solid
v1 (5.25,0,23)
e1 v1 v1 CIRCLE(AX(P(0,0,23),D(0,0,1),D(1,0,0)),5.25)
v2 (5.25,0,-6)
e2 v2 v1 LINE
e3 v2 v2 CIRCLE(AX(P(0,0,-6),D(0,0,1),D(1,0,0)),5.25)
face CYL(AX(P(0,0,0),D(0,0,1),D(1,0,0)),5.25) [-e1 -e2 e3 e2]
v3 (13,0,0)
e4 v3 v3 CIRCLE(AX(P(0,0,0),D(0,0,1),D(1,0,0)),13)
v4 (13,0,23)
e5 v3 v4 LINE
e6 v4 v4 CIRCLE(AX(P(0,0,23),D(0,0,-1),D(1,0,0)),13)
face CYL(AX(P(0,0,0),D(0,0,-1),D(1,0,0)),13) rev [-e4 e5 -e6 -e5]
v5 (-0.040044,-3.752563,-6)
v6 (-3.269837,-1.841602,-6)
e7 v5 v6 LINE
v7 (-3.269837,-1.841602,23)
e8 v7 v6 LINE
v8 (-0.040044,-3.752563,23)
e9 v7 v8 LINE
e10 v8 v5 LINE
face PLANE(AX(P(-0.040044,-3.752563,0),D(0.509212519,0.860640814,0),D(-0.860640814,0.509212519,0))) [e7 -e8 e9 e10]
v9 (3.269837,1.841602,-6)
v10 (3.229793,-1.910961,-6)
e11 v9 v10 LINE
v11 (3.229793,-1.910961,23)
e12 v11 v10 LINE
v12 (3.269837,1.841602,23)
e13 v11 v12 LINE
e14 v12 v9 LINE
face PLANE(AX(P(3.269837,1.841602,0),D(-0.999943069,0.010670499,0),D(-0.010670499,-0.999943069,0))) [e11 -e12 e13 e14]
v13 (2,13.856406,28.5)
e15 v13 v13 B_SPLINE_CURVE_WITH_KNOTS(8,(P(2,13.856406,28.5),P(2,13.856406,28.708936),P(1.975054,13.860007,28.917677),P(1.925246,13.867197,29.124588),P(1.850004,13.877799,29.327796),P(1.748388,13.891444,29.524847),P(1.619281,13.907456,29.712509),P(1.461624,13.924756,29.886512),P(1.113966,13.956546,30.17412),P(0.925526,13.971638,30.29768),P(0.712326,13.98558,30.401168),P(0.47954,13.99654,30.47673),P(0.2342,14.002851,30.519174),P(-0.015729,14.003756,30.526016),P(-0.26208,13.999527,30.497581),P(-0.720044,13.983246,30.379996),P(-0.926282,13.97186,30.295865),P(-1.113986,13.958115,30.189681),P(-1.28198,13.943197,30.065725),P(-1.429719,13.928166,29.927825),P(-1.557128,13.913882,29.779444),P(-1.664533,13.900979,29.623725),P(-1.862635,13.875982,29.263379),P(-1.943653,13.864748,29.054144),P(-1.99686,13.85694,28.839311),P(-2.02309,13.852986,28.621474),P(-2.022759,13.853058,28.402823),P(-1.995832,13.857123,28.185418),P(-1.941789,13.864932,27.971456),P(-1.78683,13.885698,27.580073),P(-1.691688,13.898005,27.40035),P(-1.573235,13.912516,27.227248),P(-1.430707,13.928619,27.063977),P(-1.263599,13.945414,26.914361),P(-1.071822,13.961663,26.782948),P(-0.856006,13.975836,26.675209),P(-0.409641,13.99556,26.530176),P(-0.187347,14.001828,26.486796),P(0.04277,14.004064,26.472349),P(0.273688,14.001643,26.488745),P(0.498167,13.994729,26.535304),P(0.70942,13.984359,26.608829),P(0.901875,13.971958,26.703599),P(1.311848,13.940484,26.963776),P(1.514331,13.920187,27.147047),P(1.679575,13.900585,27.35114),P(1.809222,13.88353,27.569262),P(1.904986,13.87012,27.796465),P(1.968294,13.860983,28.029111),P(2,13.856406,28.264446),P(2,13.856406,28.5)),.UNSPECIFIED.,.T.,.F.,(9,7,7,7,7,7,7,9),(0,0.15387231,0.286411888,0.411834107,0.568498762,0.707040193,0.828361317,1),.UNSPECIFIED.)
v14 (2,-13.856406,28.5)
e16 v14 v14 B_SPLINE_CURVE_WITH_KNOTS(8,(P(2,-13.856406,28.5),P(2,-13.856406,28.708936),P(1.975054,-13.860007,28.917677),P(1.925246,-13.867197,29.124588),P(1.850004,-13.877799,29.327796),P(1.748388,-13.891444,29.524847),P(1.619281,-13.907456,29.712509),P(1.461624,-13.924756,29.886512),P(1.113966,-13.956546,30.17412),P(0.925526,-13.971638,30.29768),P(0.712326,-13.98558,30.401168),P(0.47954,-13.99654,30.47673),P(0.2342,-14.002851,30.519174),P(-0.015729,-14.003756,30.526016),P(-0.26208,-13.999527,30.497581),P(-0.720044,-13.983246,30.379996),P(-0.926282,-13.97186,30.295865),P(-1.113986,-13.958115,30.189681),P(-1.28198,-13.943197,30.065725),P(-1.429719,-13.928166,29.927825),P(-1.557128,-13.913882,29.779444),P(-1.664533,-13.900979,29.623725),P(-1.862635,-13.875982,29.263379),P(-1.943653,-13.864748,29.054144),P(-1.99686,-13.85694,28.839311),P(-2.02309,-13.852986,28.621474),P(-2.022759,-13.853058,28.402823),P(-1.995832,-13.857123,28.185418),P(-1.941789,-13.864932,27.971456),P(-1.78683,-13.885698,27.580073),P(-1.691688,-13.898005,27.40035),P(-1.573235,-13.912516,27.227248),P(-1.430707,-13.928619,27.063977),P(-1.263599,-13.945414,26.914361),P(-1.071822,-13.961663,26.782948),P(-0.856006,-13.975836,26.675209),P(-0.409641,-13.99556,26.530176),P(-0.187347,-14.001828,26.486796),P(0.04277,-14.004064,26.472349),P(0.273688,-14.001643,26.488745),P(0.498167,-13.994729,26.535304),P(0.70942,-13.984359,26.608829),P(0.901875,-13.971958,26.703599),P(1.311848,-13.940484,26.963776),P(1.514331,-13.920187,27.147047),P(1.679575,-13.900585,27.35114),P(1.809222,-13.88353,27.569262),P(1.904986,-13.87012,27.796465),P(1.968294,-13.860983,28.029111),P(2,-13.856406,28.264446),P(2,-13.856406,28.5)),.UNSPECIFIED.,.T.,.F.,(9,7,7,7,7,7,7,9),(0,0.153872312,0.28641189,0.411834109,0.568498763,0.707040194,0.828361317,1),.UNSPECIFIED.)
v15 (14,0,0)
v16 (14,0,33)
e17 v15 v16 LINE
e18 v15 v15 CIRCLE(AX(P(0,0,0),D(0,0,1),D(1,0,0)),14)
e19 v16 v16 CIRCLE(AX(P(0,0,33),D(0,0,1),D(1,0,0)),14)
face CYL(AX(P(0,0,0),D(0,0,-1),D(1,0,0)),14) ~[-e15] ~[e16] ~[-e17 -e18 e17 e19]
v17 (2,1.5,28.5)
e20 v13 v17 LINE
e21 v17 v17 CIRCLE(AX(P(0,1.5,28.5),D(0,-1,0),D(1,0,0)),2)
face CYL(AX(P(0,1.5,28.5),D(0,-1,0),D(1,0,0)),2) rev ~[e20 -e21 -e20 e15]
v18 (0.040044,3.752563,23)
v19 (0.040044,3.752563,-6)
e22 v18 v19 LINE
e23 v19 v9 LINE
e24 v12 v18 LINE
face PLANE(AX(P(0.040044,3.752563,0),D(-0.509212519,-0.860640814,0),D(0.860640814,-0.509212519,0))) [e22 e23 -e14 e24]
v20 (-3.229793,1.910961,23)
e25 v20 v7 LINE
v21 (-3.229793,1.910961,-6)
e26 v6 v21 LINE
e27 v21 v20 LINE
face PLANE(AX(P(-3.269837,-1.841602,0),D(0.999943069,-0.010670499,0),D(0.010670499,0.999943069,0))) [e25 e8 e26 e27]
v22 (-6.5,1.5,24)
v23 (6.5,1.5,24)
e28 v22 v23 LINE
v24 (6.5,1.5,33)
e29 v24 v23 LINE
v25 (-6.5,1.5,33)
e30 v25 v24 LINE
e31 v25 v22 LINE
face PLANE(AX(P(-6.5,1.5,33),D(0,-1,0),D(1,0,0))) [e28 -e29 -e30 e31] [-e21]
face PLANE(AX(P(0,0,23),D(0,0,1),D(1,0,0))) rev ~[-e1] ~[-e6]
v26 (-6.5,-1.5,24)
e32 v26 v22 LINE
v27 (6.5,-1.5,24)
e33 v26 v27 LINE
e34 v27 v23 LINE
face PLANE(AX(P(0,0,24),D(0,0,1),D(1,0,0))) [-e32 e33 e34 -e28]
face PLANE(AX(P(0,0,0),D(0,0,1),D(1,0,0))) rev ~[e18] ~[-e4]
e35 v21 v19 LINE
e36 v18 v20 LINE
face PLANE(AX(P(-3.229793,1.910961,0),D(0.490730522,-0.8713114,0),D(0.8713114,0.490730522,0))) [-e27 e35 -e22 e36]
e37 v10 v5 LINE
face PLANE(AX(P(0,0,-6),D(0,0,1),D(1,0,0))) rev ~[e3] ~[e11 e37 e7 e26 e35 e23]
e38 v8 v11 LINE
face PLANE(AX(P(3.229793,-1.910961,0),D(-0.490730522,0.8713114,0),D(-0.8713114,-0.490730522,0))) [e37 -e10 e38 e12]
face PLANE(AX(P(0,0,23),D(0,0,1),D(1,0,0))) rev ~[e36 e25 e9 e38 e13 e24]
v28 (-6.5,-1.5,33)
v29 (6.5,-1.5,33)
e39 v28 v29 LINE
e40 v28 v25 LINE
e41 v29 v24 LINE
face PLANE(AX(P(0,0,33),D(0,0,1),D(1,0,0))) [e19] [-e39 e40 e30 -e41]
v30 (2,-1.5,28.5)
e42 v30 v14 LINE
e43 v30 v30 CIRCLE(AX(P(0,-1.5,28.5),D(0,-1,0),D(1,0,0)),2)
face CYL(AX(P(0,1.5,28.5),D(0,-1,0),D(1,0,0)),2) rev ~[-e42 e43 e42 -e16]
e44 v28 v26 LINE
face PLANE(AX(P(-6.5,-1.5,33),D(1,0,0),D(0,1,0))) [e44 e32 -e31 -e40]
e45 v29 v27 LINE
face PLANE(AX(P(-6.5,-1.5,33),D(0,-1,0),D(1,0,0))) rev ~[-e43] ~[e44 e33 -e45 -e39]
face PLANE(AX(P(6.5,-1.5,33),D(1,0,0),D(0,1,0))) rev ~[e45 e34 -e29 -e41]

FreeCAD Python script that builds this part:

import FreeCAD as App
import Part
import Sketcher

V = App.Vector
Q = App.Units.Quantity

doc = App.newDocument("Part")
body = doc.addObject("PartDesign::Body", "Body")
body.AllowCompound = True

# Sketch on XY plane
sketch1 = body.newObject("Sketcher::SketchObject", "Sketch")
sketch1.AttachmentSupport = (doc.getObject("XY_Plane"), [""])
sketch1.MapMode = "FlatFace"
sketch1.addGeometry([
    Part.Circle(V(0, 0, 0), V(0, 0, 1), 14),  # 0
    Part.Circle(V(0, 0, 0), V(0, 0, 1), 13),  # 1
    Part.Circle(V(0, 0, 0), V(0, 0, 1), 5.2),  # 2
    Part.LineSegment(V(-3.3, -1.8, 0), V(-3.2, 1.9, 0)),  # 3
    Part.LineSegment(V(-3.2, 1.9, 0), V(0, 3.8, 0)),  # 4
    Part.LineSegment(V(0, 3.8, 0), V(3.3, 1.8, 0)),  # 5
    Part.LineSegment(V(3.3, 1.8, 0), V(3.2, -1.9, 0)),  # 6
    Part.LineSegment(V(3.2, -1.9, 0), V(0, -3.8, 0)),  # 7
    Part.LineSegment(V(0, -3.8, 0), V(-3.3, -1.8, 0)),  # 8
], False)
sketch1.addConstraint([
    Sketcher.Constraint("Coincident", 3, 2, 4, 1),
    Sketcher.Constraint("Coincident", 4, 2, 5, 1),
    Sketcher.Constraint("Coincident", 5, 2, 6, 1),
    Sketcher.Constraint("Coincident", 6, 2, 7, 1),
    Sketcher.Constraint("Coincident", 7, 2, 8, 1),
    Sketcher.Constraint("Coincident", 8, 2, 3, 1),
    Sketcher.Constraint("Coincident", 0, 3, -1, 1),
    Sketcher.Constraint("Coincident", 1, 3, -1, 1),
    Sketcher.Constraint("Coincident", 2, 3, -1, 1),
    Sketcher.Constraint("Symmetric", 3, 2, 6, 2, -1, 1),
    Sketcher.Constraint("Symmetric", 4, 2, 7, 2, -1, 1),
    Sketcher.Constraint("Symmetric", 5, 2, 8, 2, -1, 1),
    Sketcher.Constraint("Equal", 3, 4),
    Sketcher.Constraint("Equal", 4, 5),
    Sketcher.Constraint("Diameter", 0, Q("28 mm")),
    Sketcher.Constraint("Diameter", 1, Q("26 mm")),
    Sketcher.Constraint("Diameter", 2, Q("10.5 mm")),
    Sketcher.Constraint("DistanceY", -1, 1, 3, 2, Q("1.910961 mm")),
    Sketcher.Constraint("DistanceY", 5, 2, 4, 2, Q("1.910961 mm")),
    Sketcher.Constraint("DistanceX", 3, 2, 5, 2, Q("6.49963 mm")),
    Sketcher.Constraint("DistanceY", 5, 2, 3, 2, Q("0.069359 mm")),
])
pad1 = body.newObject("PartDesign::Pad", "Pad")
pad1.Profile = sketch1
pad1.Length = 33

# Sketch on XY plane
sketch2 = body.newObject("Sketcher::SketchObject", "Sketch001")
sketch2.AttachmentSupport = (doc.getObject("XY_Plane"), [""])
sketch2.MapMode = "FlatFace"
sketch2.addGeometry([
    Part.Circle(V(0, 0, 0), V(0, 0, 1), 5.2),  # 0
    Part.LineSegment(V(-3.3, -1.8, 0), V(-3.2, 1.9, 0)),  # 1
    Part.LineSegment(V(-3.2, 1.9, 0), V(0, 3.8, 0)),  # 2
    Part.LineSegment(V(0, 3.8, 0), V(3.3, 1.8, 0)),  # 3
    Part.LineSegment(V(3.3, 1.8, 0), V(3.2, -1.9, 0)),  # 4
    Part.LineSegment(V(3.2, -1.9, 0), V(0, -3.8, 0)),  # 5
    Part.LineSegment(V(0, -3.8, 0), V(-3.3, -1.8, 0)),  # 6
], False)
sketch2.addConstraint([
    Sketcher.Constraint("Coincident", 1, 2, 2, 1),
    Sketcher.Constraint("Coincident", 2, 2, 3, 1),
    Sketcher.Constraint("Coincident", 3, 2, 4, 1),
    Sketcher.Constraint("Coincident", 4, 2, 5, 1),
    Sketcher.Constraint("Coincident", 5, 2, 6, 1),
    Sketcher.Constraint("Coincident", 6, 2, 1, 1),
    Sketcher.Constraint("Coincident", 0, 3, -1, 1),
    Sketcher.Constraint("Symmetric", 1, 2, 4, 2, -1, 1),
    Sketcher.Constraint("Symmetric", 2, 2, 5, 2, -1, 1),
    Sketcher.Constraint("Symmetric", 3, 2, 6, 2, -1, 1),
    Sketcher.Constraint("Equal", 1, 2),
    Sketcher.Constraint("Equal", 2, 3),
    Sketcher.Constraint("Diameter", 0, Q("10.5 mm")),
    Sketcher.Constraint("DistanceY", -1, 1, 1, 2, Q("1.910961 mm")),
    Sketcher.Constraint("DistanceY", 3, 2, 2, 2, Q("1.910961 mm")),
    Sketcher.Constraint("DistanceX", 1, 2, 3, 2, Q("6.49963 mm")),
    Sketcher.Constraint("DistanceY", 3, 2, 1, 2, Q("0.069359 mm")),
])
pad2 = body.newObject("PartDesign::Pad", "Pad001")
pad2.Profile = sketch2
pad2.Length = 6
pad2.Reversed = True
body2 = doc.addObject("PartDesign::Body", "Body001")
body2.AllowCompound = True

# Sketch on XY plane
sketch3 = body2.newObject("Sketcher::SketchObject", "Sketch002")
sketch3.AttachmentSupport = (doc.getObject("XY_Plane001"), [""])
sketch3.MapMode = "FlatFace"
sketch3.AttachmentOffset = App.Placement(V(0, 0, 33), App.Rotation())
sketch3.addGeometry([
    Part.Circle(V(0, 0, 0), V(0, 0, 1), 14),  # 0
    Part.Circle(V(0, 0, 0), V(0, 0, 1), 5.2),  # 1
    Part.LineSegment(V(-3.2, 1.9, 0), V(-3.3, -1.8, 0)),  # 2
    Part.LineSegment(V(-3.3, -1.8, 0), V(0, -3.8, 0)),  # 3
    Part.LineSegment(V(0, -3.8, 0), V(3.2, -1.9, 0)),  # 4
    Part.LineSegment(V(3.2, -1.9, 0), V(3.3, 1.8, 0)),  # 5
    Part.LineSegment(V(3.3, 1.8, 0), V(0, 3.8, 0)),  # 6
    Part.LineSegment(V(0, 3.8, 0), V(-3.2, 1.9, 0)),  # 7
], False)
sketch3.addConstraint([
    Sketcher.Constraint("Coincident", 2, 2, 3, 1),
    Sketcher.Constraint("Coincident", 3, 2, 4, 1),
    Sketcher.Constraint("Coincident", 4, 2, 5, 1),
    Sketcher.Constraint("Coincident", 5, 2, 6, 1),
    Sketcher.Constraint("Coincident", 6, 2, 7, 1),
    Sketcher.Constraint("Coincident", 7, 2, 2, 1),
    Sketcher.Constraint("Coincident", 0, 3, -1, 1),
    Sketcher.Constraint("Coincident", 1, 3, -1, 1),
    Sketcher.Constraint("Symmetric", 2, 2, 5, 2, -1, 1),
    Sketcher.Constraint("Symmetric", 3, 2, 6, 2, -1, 1),
    Sketcher.Constraint("Symmetric", 4, 2, 7, 2, -1, 1),
    Sketcher.Constraint("Equal", 2, 3),
    Sketcher.Constraint("Equal", 3, 4),
    Sketcher.Constraint("Diameter", 0, Q("28 mm")),
    Sketcher.Constraint("Diameter", 1, Q("10.5 mm")),
    Sketcher.Constraint("DistanceY", 4, 2, -1, 1, Q("1.910961 mm")),
    Sketcher.Constraint("DistanceY", 3, 2, 2, 2, Q("1.910961 mm")),
    Sketcher.Constraint("DistanceX", 2, 2, 4, 2, Q("6.49963 mm")),
    Sketcher.Constraint("DistanceY", 4, 2, 2, 2, Q("0.069359 mm")),
])
pad3 = body2.newObject("PartDesign::Pad", "Pad002")
pad3.Profile = sketch3
pad3.Length = 10
pad3.Reversed = True
doc.recompute()

boolean = body.newObject("PartDesign::Boolean", "Boolean")
boolean.Type = "Fuse"
boolean.addObjects([body2])

# Sketch on XY plane
sketch4 = body.newObject("Sketcher::SketchObject", "Sketch003")
sketch4.AttachmentSupport = (doc.getObject("XY_Plane"), [""])
sketch4.MapMode = "FlatFace"
sketch4.AttachmentOffset = App.Placement(V(0, 0, 33), App.Rotation())
sketch4.addGeometry([
    Part.LineSegment(V(-6.5, 1.5, 0), V(-6.5, -1.5, 0)),
    Part.LineSegment(V(-6.5, -1.5, 0), V(6.5, -1.5, 0)),
    Part.LineSegment(V(6.5, -1.5, 0), V(6.5, 1.5, 0)),
    Part.LineSegment(V(6.5, 1.5, 0), V(-6.5, 1.5, 0)),
], False)
sketch4.addConstraint([
    Sketcher.Constraint("Coincident", 0, 2, 1, 1),
    Sketcher.Constraint("Coincident", 1, 2, 2, 1),
    Sketcher.Constraint("Coincident", 2, 2, 3, 1),
    Sketcher.Constraint("Coincident", 3, 2, 0, 1),
    Sketcher.Constraint("Vertical", 0),
    Sketcher.Constraint("Horizontal", 1),
    Sketcher.Constraint("Vertical", 2),
    Sketcher.Constraint("Horizontal", 3),
    Sketcher.Constraint("Symmetric", 0, 2, 2, 2, -1, 1),
    Sketcher.Constraint("DistanceX", 1, 1, 1, 2, Q("13 mm")),
    Sketcher.Constraint("DistanceY", 0, 2, 0, 1, Q("3 mm")),
])
pocket1 = body.newObject("PartDesign::Pocket", "Pocket")
pocket1.Profile = sketch4
pocket1.Length = 9

# Sketch on XZ plane
sketch5 = body.newObject("Sketcher::SketchObject", "Sketch004")
sketch5.AttachmentSupport = (doc.getObject("XZ_Plane"), [""])
sketch5.MapMode = "FlatFace"
sketch5.AttachmentOffset = App.Placement(V(0, 0, -1.5), App.Rotation())
sketch5.addGeometry(Part.Circle(V(0, 28.5, 0), V(0, 0, 1), 2), False)
sketch5.addConstraint([
    Sketcher.Constraint("PointOnObject", 0, 3, -2),
    Sketcher.Constraint("Diameter", 0, Q("4 mm")),
    Sketcher.Constraint("DistanceY", -1, 1, 0, 3, Q("28.5 mm")),
])
pocket2 = body.newObject("PartDesign::Pocket", "Pocket001")
pocket2.Profile = sketch5
pocket2.Length = 32
pocket2.Midplane = True

doc.recompute()
